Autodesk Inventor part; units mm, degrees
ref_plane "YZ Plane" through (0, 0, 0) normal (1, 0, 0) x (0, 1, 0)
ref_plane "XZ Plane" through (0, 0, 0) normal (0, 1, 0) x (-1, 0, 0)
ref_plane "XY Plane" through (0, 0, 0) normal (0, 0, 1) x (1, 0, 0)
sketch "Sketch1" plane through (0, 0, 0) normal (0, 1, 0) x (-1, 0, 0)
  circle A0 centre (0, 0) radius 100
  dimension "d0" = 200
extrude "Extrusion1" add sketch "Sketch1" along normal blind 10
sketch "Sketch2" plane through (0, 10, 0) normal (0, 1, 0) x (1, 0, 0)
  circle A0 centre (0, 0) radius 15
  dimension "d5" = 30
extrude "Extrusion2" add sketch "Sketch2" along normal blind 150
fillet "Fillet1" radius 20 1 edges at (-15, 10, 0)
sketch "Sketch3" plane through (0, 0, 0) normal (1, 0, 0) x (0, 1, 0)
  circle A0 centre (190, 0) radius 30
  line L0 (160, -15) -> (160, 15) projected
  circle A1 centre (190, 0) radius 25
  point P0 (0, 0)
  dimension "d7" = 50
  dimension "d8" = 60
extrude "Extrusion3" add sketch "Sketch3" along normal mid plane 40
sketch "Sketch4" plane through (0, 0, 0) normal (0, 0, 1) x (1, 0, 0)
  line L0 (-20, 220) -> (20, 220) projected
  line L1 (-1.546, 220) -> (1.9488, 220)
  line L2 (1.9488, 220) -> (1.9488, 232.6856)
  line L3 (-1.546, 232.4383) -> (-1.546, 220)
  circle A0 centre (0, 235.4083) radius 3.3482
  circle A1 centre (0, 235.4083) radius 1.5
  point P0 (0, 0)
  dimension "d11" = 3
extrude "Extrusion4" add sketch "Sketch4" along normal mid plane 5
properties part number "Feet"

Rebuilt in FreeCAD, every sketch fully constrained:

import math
import FreeCAD as App
import Part
import Sketcher
from FreeCAD import Vector
Q = App.Units.Quantity


def edges_at(feature, points):
    """Names of the edges that pass closest to the given points."""
    edges = feature.Shape.Edges
    near = lambda p: min(range(len(edges)), key=lambda i: edges[i].distToShape(Part.Vertex(*p))[0])
    return sorted({f"Edge{near(p) + 1}" for p in points})

doc = App.newDocument("Part")
body = doc.addObject("PartDesign::Body", "Body")
body.AllowCompound = True

# Sketch on XZ plane
sketch1 = body.newObject("Sketcher::SketchObject", "Sketch")
sketch1.AttachmentSupport = (doc.getObject("XZ_Plane"), [""])
sketch1.MapMode = "FlatFace"
sketch1.addGeometry(Part.Circle(Vector(0, 0, 0), Vector(0, 0, 1), 100), False)
sketch1.addConstraint(Sketcher.Constraint("Coincident", 0, 3, -1, 1))
sketch1.addConstraint(Sketcher.Constraint("Diameter", 0, Q("200 mm")))
pad1 = body.newObject("PartDesign::Pad", "Pad")
pad1.Profile = sketch1
pad1.Length = 10
pad1.Reversed = True

# Sketch on XZ plane
sketch2 = body.newObject("Sketcher::SketchObject", "Sketch001")
sketch2.AttachmentSupport = (doc.getObject("XZ_Plane"), [""])
sketch2.MapMode = "FlatFace"
sketch2.AttachmentOffset = App.Placement(Vector(0, 0, -10), App.Rotation())
sketch2.addGeometry(Part.Circle(Vector(0, 0, 0), Vector(0, 0, 1), 15), False)
sketch2.addConstraint(Sketcher.Constraint("Coincident", 0, 3, -1, 1))
sketch2.addConstraint(Sketcher.Constraint("Diameter", 0, Q("30 mm")))
pad2 = body.newObject("PartDesign::Pad", "Pad001")
pad2.Profile = sketch2
pad2.Length = 150
pad2.Reversed = True
doc.recompute()

fillet = body.newObject("PartDesign::Fillet", "Fillet")
fillet.Base = (pad2, edges_at(pad2, [(-15, 10, 0)]))
fillet.Radius = 20

# Sketch on YZ plane
sketch3 = body.newObject("Sketcher::SketchObject", "Sketch002")
sketch3.AttachmentSupport = (doc.getObject("YZ_Plane"), [""])
sketch3.MapMode = "FlatFace"
sketch3.addGeometry(Part.Circle(Vector(190, 0, 0), Vector(0, 0, 1), 30), False)
sketch3.addGeometry(Part.Circle(Vector(190, 0, 0), Vector(0, 0, 1), 25), False)
sketch3.addConstraint(Sketcher.Constraint("Coincident", 1, 3, 0, 3))
sketch3.addConstraint(Sketcher.Constraint("PointOnObject", 0, 3, -1))
sketch3.addConstraint(Sketcher.Constraint("Diameter", 0, Q("60 mm")))
sketch3.addConstraint(Sketcher.Constraint("Diameter", 1, Q("50 mm")))
sketch3.addConstraint(Sketcher.Constraint("DistanceX", -1, 1, 0, 3, Q("190 mm")))
pad3 = body.newObject("PartDesign::Pad", "Pad002")
pad3.Profile = sketch3
pad3.Length = 40
pad3.Midplane = True

# Sketch on XY plane
sketch4 = body.newObject("Sketcher::SketchObject", "Sketch003")
sketch4.AttachmentSupport = (doc.getObject("XY_Plane"), [""])
sketch4.MapMode = "FlatFace"
sketch4.addGeometry(Part.LineSegment(Vector(-1.5, 232.4, 0), Vector(-1.5, 220, 0)), False)
sketch4.addGeometry(Part.LineSegment(Vector(-1.5, 220, 0), Vector(1.9, 220, 0)), False)
sketch4.addGeometry(Part.LineSegment(Vector(1.9, 220, 0), Vector(1.9, 232.7, 0)), False)
sketch4.addGeometry(Part.ArcOfCircle(Part.Circle(Vector(0, 235.4, 0), Vector(0, 0, 1), 3.3), math.radians(-54), math.radians(243)), False)
sketch4.addGeometry(Part.Circle(Vector(0, 235.4, 0), Vector(0, 0, 1), 1.5), False)
sketch4.addConstraint(Sketcher.Constraint("Coincident", 0, 2, 1, 1))
sketch4.addConstraint(Sketcher.Constraint("Coincident", 1, 2, 2, 1))
sketch4.addConstraint(Sketcher.Constraint("Coincident", 2, 2, 3, 1))
sketch4.addConstraint(Sketcher.Constraint("Coincident", 3, 2, 0, 1))
sketch4.addConstraint(Sketcher.Constraint("Vertical", 0))
sketch4.addConstraint(Sketcher.Constraint("Horizontal", 1))
sketch4.addConstraint(Sketcher.Constraint("Vertical", 2))
sketch4.addConstraint(Sketcher.Constraint("Coincident", 4, 3, 3, 3))
sketch4.addConstraint(Sketcher.Constraint("PointOnObject", 3, 3, -2))
sketch4.addConstraint(Sketcher.Constraint("Diameter", 4, Q("3 mm")))
sketch4.addConstraint(Sketcher.Constraint("DistanceY", -1, 1, 0, 2, Q("220 mm")))
sketch4.addConstraint(Sketcher.Constraint("Radius", 3, Q("3.3482 mm")))
sketch4.addConstraint(Sketcher.Constraint("DistanceY", 3, 2, 3, 3, Q("2.97 mm")))
sketch4.addConstraint(Sketcher.Constraint("DistanceX", 1, 1, 1, 2, Q("3.4948 mm")))
sketch4.addConstraint(Sketcher.Constraint("DistanceY", 0, 2, 0, 1, Q("12.4383 mm")))
pad4 = body.newObject("PartDesign::Pad", "Pad003")
pad4.Profile = sketch4
pad4.Length = 5
pad4.Midplane = True

doc.recompute()
